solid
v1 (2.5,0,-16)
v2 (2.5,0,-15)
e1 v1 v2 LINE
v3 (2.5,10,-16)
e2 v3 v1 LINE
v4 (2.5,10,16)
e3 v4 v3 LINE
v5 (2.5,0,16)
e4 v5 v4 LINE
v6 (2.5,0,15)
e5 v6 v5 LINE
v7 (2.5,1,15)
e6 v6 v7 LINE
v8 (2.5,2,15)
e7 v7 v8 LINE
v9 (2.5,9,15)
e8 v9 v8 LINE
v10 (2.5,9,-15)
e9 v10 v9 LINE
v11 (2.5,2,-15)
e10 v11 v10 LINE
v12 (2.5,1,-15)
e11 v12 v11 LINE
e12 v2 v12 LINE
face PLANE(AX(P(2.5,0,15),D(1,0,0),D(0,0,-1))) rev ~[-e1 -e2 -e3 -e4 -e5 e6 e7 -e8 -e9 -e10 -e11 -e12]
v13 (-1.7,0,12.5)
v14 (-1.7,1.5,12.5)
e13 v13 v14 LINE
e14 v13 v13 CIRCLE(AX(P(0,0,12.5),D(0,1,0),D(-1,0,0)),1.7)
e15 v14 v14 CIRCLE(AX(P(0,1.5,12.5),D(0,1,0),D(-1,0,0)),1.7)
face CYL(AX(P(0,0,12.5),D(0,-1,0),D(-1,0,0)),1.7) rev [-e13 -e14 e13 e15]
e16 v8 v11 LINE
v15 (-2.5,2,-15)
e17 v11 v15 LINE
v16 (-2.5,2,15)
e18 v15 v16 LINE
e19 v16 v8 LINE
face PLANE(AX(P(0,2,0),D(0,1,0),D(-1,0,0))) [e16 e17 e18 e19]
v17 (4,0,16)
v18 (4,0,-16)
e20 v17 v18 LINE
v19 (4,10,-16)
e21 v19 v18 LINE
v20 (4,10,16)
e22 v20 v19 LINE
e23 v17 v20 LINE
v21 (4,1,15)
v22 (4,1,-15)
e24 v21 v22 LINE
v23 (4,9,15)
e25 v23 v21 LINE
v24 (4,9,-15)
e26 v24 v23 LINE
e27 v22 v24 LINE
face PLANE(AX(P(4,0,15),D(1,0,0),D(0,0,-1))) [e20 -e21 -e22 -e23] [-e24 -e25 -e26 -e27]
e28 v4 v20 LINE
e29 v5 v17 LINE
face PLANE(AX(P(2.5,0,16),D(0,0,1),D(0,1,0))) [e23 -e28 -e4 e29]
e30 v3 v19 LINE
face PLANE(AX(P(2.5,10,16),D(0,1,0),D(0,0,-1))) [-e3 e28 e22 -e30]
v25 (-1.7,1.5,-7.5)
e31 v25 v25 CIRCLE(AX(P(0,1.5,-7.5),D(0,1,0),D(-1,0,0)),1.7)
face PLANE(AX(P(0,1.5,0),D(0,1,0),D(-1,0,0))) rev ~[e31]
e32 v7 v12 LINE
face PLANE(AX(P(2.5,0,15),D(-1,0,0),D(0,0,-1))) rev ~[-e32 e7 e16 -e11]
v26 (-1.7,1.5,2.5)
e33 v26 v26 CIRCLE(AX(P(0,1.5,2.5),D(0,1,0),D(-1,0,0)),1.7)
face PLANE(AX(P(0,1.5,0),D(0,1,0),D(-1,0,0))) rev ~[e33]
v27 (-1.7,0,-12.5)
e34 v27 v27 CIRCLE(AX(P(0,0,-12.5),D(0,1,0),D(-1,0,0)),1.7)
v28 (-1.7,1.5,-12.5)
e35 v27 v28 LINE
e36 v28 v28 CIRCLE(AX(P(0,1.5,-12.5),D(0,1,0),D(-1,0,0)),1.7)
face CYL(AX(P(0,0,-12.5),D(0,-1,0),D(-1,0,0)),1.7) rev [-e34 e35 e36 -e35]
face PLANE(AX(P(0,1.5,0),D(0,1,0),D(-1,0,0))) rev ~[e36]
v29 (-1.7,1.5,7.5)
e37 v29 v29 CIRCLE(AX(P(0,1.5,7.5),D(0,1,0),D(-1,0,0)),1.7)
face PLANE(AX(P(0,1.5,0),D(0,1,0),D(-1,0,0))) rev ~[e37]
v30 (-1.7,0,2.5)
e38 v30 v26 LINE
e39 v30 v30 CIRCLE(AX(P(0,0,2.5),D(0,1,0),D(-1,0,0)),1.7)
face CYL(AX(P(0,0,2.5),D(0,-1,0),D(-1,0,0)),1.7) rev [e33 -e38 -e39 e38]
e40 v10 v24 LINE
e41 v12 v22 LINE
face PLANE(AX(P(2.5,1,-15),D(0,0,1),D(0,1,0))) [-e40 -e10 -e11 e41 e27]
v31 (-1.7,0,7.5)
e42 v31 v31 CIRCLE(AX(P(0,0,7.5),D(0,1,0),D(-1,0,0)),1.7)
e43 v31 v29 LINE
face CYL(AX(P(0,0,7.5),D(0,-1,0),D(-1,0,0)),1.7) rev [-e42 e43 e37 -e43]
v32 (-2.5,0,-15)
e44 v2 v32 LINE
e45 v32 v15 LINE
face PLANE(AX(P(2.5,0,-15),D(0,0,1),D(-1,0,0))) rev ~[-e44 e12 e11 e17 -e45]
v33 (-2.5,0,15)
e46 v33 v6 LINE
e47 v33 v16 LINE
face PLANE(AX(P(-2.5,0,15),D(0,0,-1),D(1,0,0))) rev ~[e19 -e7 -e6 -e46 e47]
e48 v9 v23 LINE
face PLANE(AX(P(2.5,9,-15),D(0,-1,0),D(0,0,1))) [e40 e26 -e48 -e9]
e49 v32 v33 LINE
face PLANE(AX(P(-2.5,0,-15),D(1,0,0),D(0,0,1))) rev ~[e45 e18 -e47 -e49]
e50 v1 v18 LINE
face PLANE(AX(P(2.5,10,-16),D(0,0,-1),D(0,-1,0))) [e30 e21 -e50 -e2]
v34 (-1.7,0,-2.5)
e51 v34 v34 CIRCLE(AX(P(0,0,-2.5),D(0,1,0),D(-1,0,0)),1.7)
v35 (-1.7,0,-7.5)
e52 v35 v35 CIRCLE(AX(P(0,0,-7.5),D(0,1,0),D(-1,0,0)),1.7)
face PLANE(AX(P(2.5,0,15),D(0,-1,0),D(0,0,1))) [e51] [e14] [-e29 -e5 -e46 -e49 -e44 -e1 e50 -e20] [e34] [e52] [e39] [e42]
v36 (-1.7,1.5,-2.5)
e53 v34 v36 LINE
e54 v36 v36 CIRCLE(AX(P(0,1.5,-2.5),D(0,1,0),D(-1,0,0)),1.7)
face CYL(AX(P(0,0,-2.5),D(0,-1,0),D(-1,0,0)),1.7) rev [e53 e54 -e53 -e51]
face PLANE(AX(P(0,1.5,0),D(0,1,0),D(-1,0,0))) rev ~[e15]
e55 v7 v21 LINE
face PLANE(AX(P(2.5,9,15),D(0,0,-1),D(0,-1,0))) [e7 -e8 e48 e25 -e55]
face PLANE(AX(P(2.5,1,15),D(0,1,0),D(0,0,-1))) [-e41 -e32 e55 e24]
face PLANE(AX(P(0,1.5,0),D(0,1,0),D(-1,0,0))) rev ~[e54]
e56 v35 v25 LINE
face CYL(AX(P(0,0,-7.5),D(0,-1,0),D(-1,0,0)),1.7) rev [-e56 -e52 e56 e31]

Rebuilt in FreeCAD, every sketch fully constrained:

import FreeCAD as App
import Part
import Sketcher


def add_polygon(sketch, points):
    """Adds a closed chain of lines whose ends are joined by coincident constraints."""
    first, n = sketch.GeometryCount, len(points)
    for a, b in zip(points, points[1:] + points[:1]):
        sketch.addGeometry(Part.LineSegment(App.Vector(*a, 0), App.Vector(*b, 0)), False)
    for i in range(n):
        sketch.addConstraint(Sketcher.Constraint("Coincident", first + i, 2, first + (i + 1) % n, 1))

doc = App.newDocument("Part")
params = doc.addObject("Spreadsheet::Sheet", "Params")
for row, (alias, value) in enumerate([
    ("sketch1_width", "5 mm"),
    ("sketch1_height", "30 mm"),
    ("pad1_length", "2 mm"),
    ("sketch2_diameter", "3.4 mm"),
    ("pocket1_length", "1.5 mm"),
    ("sketch3_width", "10 mm"),
    ("sketch3_height", "32 mm"),
    ("pad2_length", "1.5 mm"),
], start=1):
    params.set(f"A{row}", alias)
    params.set(f"B{row}", "=" + value)
    params.setAlias(f"B{row}", alias)

body = doc.addObject("PartDesign::Body", "Body")

# Sketch on XZ plane
sketch1 = body.newObject("Sketcher::SketchObject", "Sketch")
sketch1.AttachmentSupport = (doc.getObject("XZ_Plane"), [""])
sketch1.MapMode = "FlatFace"
add_polygon(sketch1, [(-2.5, -15), (-2.5, 15), (2.5, 15), (2.5, -15)])  # lines 0-3
sketch1.addConstraint([
    Sketcher.Constraint("Vertical", 0),
    Sketcher.Constraint("Horizontal", 1),
    Sketcher.Constraint("Vertical", 2),
    Sketcher.Constraint("Horizontal", 3),
    Sketcher.Constraint("Symmetric", 0, 2, 2, 2, -1, 1),
    Sketcher.Constraint("DistanceX", 1, 1, 1, 2, 5.0),
    Sketcher.Constraint("DistanceY", 0, 1, 0, 2, 30.0),
])
sketch1.setExpression("Constraints[9]", "Params.sketch1_width")
sketch1.setExpression("Constraints[10]", "Params.sketch1_height")
pad1 = body.newObject("PartDesign::Pad", "Pad")
pad1.Profile = sketch1
pad1.setExpression("Length", "Params.pad1_length")
pad1.Reversed = True

# Sketch on XZ plane
sketch2 = body.newObject("Sketcher::SketchObject", "Sketch001")
sketch2.AttachmentSupport = (doc.getObject("XZ_Plane"), [""])
sketch2.MapMode = "FlatFace"
sketch2.addGeometry([
    Part.Circle(App.Vector(0, 12.5, 0), App.Vector(0, 0, 1), 1.7),  # 0
    Part.Circle(App.Vector(0, 7.5, 0), App.Vector(0, 0, 1), 1.7),  # 1
    Part.Circle(App.Vector(0, 2.5, 0), App.Vector(0, 0, 1), 1.7),  # 2
    Part.Circle(App.Vector(0, -2.5, 0), App.Vector(0, 0, 1), 1.7),  # 3
    Part.Circle(App.Vector(0, -7.5, 0), App.Vector(0, 0, 1), 1.7),  # 4
    Part.Circle(App.Vector(0, -12.5, 0), App.Vector(0, 0, 1), 1.7),  # 5
], False)
sketch2.addConstraint([
    Sketcher.Constraint("Equal", 0, 1),
    Sketcher.Constraint("Equal", 1, 2),
    Sketcher.Constraint("Equal", 2, 3),
    Sketcher.Constraint("Equal", 3, 4),
    Sketcher.Constraint("Equal", 4, 5),
    Sketcher.Constraint("Symmetric", 2, 3, 3, 3, -1, 1),
    Sketcher.Constraint("Symmetric", 1, 3, 4, 3, -1, 1),
    Sketcher.Constraint("Symmetric", 0, 3, 5, 3, -1, 1),
    Sketcher.Constraint("PointOnObject", 0, 3, -2),
    Sketcher.Constraint("PointOnObject", 1, 3, -2),
    Sketcher.Constraint("PointOnObject", 2, 3, -2),
    Sketcher.Constraint("Diameter", 0, 3.4),
    Sketcher.Constraint("DistanceY", 1, 3, 0, 3, 5.0),
    Sketcher.Constraint("DistanceY", 2, 3, 1, 3, 5.0),
    Sketcher.Constraint("DistanceY", 3, 3, 2, 3, 5.0),
])
sketch2.setExpression("Constraints[11]", "Params.sketch2_diameter")
pocket1 = body.newObject("PartDesign::Pocket", "Pocket")
pocket1.Profile = sketch2
pocket1.setExpression("Length", "Params.pocket1_length")

# Sketch on YZ plane
sketch3 = body.newObject("Sketcher::SketchObject", "Sketch002")
sketch3.AttachmentSupport = (doc.getObject("YZ_Plane"), [""])
sketch3.MapMode = "FlatFace"
sketch3.AttachmentOffset = App.Placement(App.Vector(0, 0, 2.5), App.Rotation())
add_polygon(sketch3, [(10, -16), (10, 16), (0, 16), (0, -16)])  # lines 0-3
add_polygon(sketch3, [(9, 15), (9, -15), (1, -15), (1, 15)])  # lines 4-7
sketch3.addConstraint([
    Sketcher.Constraint("Vertical", 0),
    Sketcher.Constraint("Horizontal", 1),
    Sketcher.Constraint("Vertical", 2),
    Sketcher.Constraint("Horizontal", 3),
    Sketcher.Constraint("Vertical", 4),
    Sketcher.Constraint("Horizontal", 5),
    Sketcher.Constraint("Vertical", 6),
    Sketcher.Constraint("Horizontal", 7),
    Sketcher.Constraint("Symmetric", 1, 2, 2, 2, -1, 1),
    Sketcher.Constraint("DistanceX", 1, 2, 1, 1, 10.0),
    Sketcher.Constraint("DistanceY", 0, 1, 0, 2, 32.0),
    Sketcher.Constraint("DistanceX", -1, 1, 5, 2, 1.0),
    Sketcher.Constraint("DistanceX", 4, 2, 3, 2, 1.0),
    Sketcher.Constraint("DistanceY", 3, 2, 4, 2, 1.0),
    Sketcher.Constraint("DistanceY", 6, 2, 1, 2, 1.0),
])
sketch3.setExpression("Constraints[17]", "Params.sketch3_width")
sketch3.setExpression("Constraints[18]", "Params.sketch3_height")
pad2 = body.newObject("PartDesign::Pad", "Pad001")
pad2.Profile = sketch3
pad2.setExpression("Length", "Params.pad2_length")

doc.recompute()
